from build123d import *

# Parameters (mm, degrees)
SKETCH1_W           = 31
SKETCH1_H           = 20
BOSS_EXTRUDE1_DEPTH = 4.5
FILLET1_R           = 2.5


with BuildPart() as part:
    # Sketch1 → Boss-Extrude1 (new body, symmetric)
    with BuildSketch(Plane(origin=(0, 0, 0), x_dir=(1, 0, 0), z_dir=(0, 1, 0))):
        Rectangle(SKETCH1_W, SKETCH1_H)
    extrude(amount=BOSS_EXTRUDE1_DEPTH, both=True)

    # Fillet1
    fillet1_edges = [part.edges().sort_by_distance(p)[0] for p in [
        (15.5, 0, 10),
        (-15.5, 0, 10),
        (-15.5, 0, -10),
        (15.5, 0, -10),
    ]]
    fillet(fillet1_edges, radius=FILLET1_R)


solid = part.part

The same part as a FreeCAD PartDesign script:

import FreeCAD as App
import Part
import Sketcher
from FreeCAD import Vector
Q = App.Units.Quantity


def edges_at(feature, points):
    """Names of the edges that pass closest to the given points."""
    edges = feature.Shape.Edges
    near = lambda p: min(range(len(edges)), key=lambda i: edges[i].distToShape(Part.Vertex(*p))[0])
    return sorted({f"Edge{near(p) + 1}" for p in points})

doc = App.newDocument("Part")
body = doc.addObject("PartDesign::Body", "Body")

# Sketch on XZ plane
sketch1 = body.newObject("Sketcher::SketchObject", "Sketch")
sketch1.AttachmentSupport = (doc.getObject("XZ_Plane"), [""])
sketch1.MapMode = "FlatFace"
sketch1.addGeometry([
    Part.LineSegment(Vector(-16, -10, 0), Vector(-16, 10, 0)),
    Part.LineSegment(Vector(-16, 10, 0), Vector(16, 10, 0)),
    Part.LineSegment(Vector(16, 10, 0), Vector(16, -10, 0)),
    Part.LineSegment(Vector(16, -10, 0), Vector(-16, -10, 0)),
], False)
sketch1.addConstraint([
    Sketcher.Constraint("Coincident", 0, 2, 1, 1),
    Sketcher.Constraint("Coincident", 1, 2, 2, 1),
    Sketcher.Constraint("Coincident", 2, 2, 3, 1),
    Sketcher.Constraint("Coincident", 3, 2, 0, 1),
    Sketcher.Constraint("Vertical", 0),
    Sketcher.Constraint("Horizontal", 1),
    Sketcher.Constraint("Vertical", 2),
    Sketcher.Constraint("Horizontal", 3),
    Sketcher.Constraint("Symmetric", 0, 2, 2, 2, -1, 1),
    Sketcher.Constraint("DistanceX", 1, 1, 1, 2, Q("31 mm")),
    Sketcher.Constraint("DistanceY", 0, 1, 0, 2, Q("20 mm")),
])
pad1 = body.newObject("PartDesign::Pad", "Pad")
pad1.Profile = sketch1
pad1.Length = 9
pad1.Midplane = True
doc.recompute()

fillet = body.newObject("PartDesign::Fillet", "Fillet")
fillet.Base = (pad1, edges_at(pad1, [
    (15.5, 0, 10),
    (-15.5, 0, 10),
    (-15.5, 0, -10),
    (15.5, 0, -10),
]))
fillet.Radius = 2.5

doc.recompute()
